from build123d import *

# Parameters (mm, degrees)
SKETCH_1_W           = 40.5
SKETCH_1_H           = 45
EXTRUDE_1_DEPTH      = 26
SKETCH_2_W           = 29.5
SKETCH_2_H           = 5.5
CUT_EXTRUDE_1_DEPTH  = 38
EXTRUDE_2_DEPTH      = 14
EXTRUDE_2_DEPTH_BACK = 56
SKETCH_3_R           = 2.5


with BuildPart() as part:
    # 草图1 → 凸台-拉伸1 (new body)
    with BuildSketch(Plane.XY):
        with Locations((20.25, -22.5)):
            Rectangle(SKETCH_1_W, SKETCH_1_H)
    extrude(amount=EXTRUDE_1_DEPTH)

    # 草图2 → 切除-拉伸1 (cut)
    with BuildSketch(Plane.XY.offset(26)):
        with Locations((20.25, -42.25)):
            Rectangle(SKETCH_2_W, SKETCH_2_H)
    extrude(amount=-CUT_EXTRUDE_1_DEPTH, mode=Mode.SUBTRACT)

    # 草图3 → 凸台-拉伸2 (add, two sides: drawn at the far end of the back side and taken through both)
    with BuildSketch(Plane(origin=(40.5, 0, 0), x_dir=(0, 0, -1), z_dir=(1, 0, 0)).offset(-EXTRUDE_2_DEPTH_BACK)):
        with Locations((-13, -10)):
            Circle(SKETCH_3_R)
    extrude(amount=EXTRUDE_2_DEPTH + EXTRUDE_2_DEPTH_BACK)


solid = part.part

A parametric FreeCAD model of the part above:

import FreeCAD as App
import Part
import Sketcher
from FreeCAD import Vector


def add_polygon(sketch, points):
    """Adds a closed chain of lines whose ends are joined by coincident constraints."""
    first, n = sketch.GeometryCount, len(points)
    for a, b in zip(points, points[1:] + points[:1]):
        sketch.addGeometry(Part.LineSegment(App.Vector(*a, 0), App.Vector(*b, 0)), False)
    for i in range(n):
        sketch.addConstraint(Sketcher.Constraint("Coincident", first + i, 2, first + (i + 1) % n, 1))

doc = App.newDocument("Part")
body = doc.addObject("PartDesign::Body", "Body")

sketch1 = doc.addObject("Sketcher::SketchObject", "Sketch")
body.addObject(sketch1)
sketch1.AttachmentSupport = (doc.XY_Plane, [""])
sketch1.MapMode = "FlatFace"
add_polygon(sketch1, [(0, 0), (0, -45), (40, -45), (40, 0)])
sketch1.addConstraint([
    Sketcher.Constraint("Vertical", 0),
    Sketcher.Constraint("Horizontal", 1),
    Sketcher.Constraint("Vertical", 2),
    Sketcher.Constraint("Horizontal", 3),
    Sketcher.Constraint("Coincident", 3, 2, -1, 1),
    Sketcher.Constraint("DistanceY", 0, 2, 0, 1, 45.0),
    Sketcher.Constraint("DistanceX", 1, 1, 1, 2, 40.5),
])
pad1 = doc.addObject("PartDesign::Pad", "Pad")
body.addObject(pad1)
pad1.Profile = sketch1
pad1.Length = 26

sketch2 = doc.addObject("Sketcher::SketchObject", "Sketch001")
body.addObject(sketch2)
sketch2.AttachmentSupport = (doc.XY_Plane, [""])
sketch2.MapMode = "FlatFace"
sketch2.AttachmentOffset = App.Placement(Vector(0, 0, 26), App.Rotation())
add_polygon(sketch2, [(6, -40), (6, -45), (35, -45), (35, -40)])
sketch2.addConstraint([
    Sketcher.Constraint("Vertical", 0),
    Sketcher.Constraint("Horizontal", 1),
    Sketcher.Constraint("Vertical", 2),
    Sketcher.Constraint("Horizontal", 3),
    Sketcher.Constraint("DistanceX", 1, 1, 1, 2, 29.5),
    Sketcher.Constraint("DistanceY", 0, 2, 0, 1, 5.5),
    Sketcher.Constraint("DistanceY", 0, 2, -1, 1, 45.0),
    Sketcher.Constraint("DistanceX", -1, 1, 1, 2, 35.0),
])
pocket1 = doc.addObject("PartDesign::Pocket", "Pocket")
body.addObject(pocket1)
pocket1.Profile = sketch2
pocket1.Length = 38

sketch3 = doc.addObject("Sketcher::SketchObject", "Sketch002")
body.addObject(sketch3)
sketch3.AttachmentSupport = (doc.YZ_Plane, [""])
sketch3.MapMode = "FlatFace"
sketch3.AttachmentOffset = App.Placement(Vector(0, 0, 40.5), App.Rotation())
sketch3.addGeometry(Part.Circle(Vector(-10, 13, 0), Vector(0, 0, 1), 2.5), False)
sketch3.addConstraint([
    Sketcher.Constraint("Diameter", 0, 5.0),
    Sketcher.Constraint("DistanceX", 0, 3, -1, 1, 10.0),
    Sketcher.Constraint("DistanceY", -1, 1, 0, 3, 13.0),
])
pad2 = doc.addObject("PartDesign::Pad", "Pad001")
body.addObject(pad2)
pad2.Profile = sketch3
pad2.Type = "TwoLengths"
pad2.Length = 14
pad2.Length2 = 56

doc.recompute()
